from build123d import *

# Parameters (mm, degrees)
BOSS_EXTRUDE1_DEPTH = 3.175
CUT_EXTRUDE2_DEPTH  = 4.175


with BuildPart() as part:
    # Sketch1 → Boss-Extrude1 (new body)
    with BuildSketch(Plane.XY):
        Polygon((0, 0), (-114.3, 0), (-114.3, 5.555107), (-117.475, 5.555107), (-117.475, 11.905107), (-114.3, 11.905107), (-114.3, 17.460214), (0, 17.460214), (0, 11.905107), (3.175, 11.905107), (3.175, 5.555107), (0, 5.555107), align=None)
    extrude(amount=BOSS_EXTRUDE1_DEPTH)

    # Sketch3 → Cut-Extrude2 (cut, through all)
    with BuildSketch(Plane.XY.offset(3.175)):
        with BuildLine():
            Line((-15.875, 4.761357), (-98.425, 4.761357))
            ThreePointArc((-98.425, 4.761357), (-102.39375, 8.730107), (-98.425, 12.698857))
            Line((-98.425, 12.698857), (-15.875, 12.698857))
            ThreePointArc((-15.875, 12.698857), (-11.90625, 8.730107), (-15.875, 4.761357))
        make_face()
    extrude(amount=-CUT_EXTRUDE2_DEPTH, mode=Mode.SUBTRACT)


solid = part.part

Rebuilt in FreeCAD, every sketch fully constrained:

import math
import FreeCAD as App
import Part
import Sketcher
Q = App.Units.Quantity

doc = App.newDocument("Part")
body = doc.addObject("PartDesign::Body", "Body")

# Sketch on XY plane
sketch1 = doc.addObject("Sketcher::SketchObject", "Sketch")
body.addObject(sketch1)
sketch1.AttachmentSupport = (doc.XY_Plane, [""])
sketch1.MapMode = "FlatFace"
sketch1.addGeometry(Part.LineSegment(App.Vector(-114.3, 0, 0), App.Vector(0, 0, 0)), False)
sketch1.addGeometry(Part.LineSegment(App.Vector(0, 0, 0), App.Vector(0, 5.555107, 0)), False)
sketch1.addGeometry(Part.LineSegment(App.Vector(0, 5.555107, 0), App.Vector(3.175, 5.555107, 0)), False)
sketch1.addGeometry(Part.LineSegment(App.Vector(3.175, 5.555107, 0), App.Vector(3.175, 11.905107, 0)), False)
sketch1.addGeometry(Part.LineSegment(App.Vector(3.175, 11.905107, 0), App.Vector(0, 11.905107, 0)), False)
sketch1.addGeometry(Part.LineSegment(App.Vector(0, 11.905107, 0), App.Vector(0, 17.460214, 0)), False)
sketch1.addGeometry(Part.LineSegment(App.Vector(0, 17.460214, 0), App.Vector(-114.3, 17.460214, 0)), False)
sketch1.addGeometry(Part.LineSegment(App.Vector(-114.3, 17.460214, 0), App.Vector(-114.3, 11.905107, 0)), False)
sketch1.addGeometry(Part.LineSegment(App.Vector(-114.3, 11.905107, 0), App.Vector(-117.475, 11.905107, 0)), False)
sketch1.addGeometry(Part.LineSegment(App.Vector(-117.475, 11.905107, 0), App.Vector(-117.475, 5.555107, 0)), False)
sketch1.addGeometry(Part.LineSegment(App.Vector(-117.475, 5.555107, 0), App.Vector(-114.3, 5.555107, 0)), False)
sketch1.addGeometry(Part.LineSegment(App.Vector(-114.3, 5.555107, 0), App.Vector(-114.3, 0, 0)), False)
sketch1.addConstraint(Sketcher.Constraint("Coincident", 0, 2, 1, 1))
sketch1.addConstraint(Sketcher.Constraint("Coincident", 1, 2, 2, 1))
sketch1.addConstraint(Sketcher.Constraint("Coincident", 2, 2, 3, 1))
sketch1.addConstraint(Sketcher.Constraint("Coincident", 3, 2, 4, 1))
sketch1.addConstraint(Sketcher.Constraint("Coincident", 4, 2, 5, 1))
sketch1.addConstraint(Sketcher.Constraint("Coincident", 5, 2, 6, 1))
sketch1.addConstraint(Sketcher.Constraint("Coincident", 6, 2, 7, 1))
sketch1.addConstraint(Sketcher.Constraint("Coincident", 7, 2, 8, 1))
sketch1.addConstraint(Sketcher.Constraint("Coincident", 8, 2, 9, 1))
sketch1.addConstraint(Sketcher.Constraint("Coincident", 9, 2, 10, 1))
sketch1.addConstraint(Sketcher.Constraint("Coincident", 10, 2, 11, 1))
sketch1.addConstraint(Sketcher.Constraint("Coincident", 11, 2, 0, 1))
sketch1.addConstraint(Sketcher.Constraint("Horizontal", 0))
sketch1.addConstraint(Sketcher.Constraint("Vertical", 1))
sketch1.addConstraint(Sketcher.Constraint("Horizontal", 2))
sketch1.addConstraint(Sketcher.Constraint("Vertical", 3))
sketch1.addConstraint(Sketcher.Constraint("Horizontal", 4))
sketch1.addConstraint(Sketcher.Constraint("Vertical", 5))
sketch1.addConstraint(Sketcher.Constraint("Horizontal", 6))
sketch1.addConstraint(Sketcher.Constraint("Vertical", 7))
sketch1.addConstraint(Sketcher.Constraint("Horizontal", 8))
sketch1.addConstraint(Sketcher.Constraint("Vertical", 9))
sketch1.addConstraint(Sketcher.Constraint("Horizontal", 10))
sketch1.addConstraint(Sketcher.Constraint("Vertical", 11))
sketch1.addConstraint(Sketcher.Constraint("Coincident", 0, 2, -1, 1))
sketch1.addConstraint(Sketcher.Constraint("PointOnObject", 4, 2, -2))
sketch1.addConstraint(Sketcher.Constraint("Horizontal", 4, 2, 7, 2))
sketch1.addConstraint(Sketcher.Constraint("Horizontal", 2, 2, 9, 2))
sketch1.addConstraint(Sketcher.Constraint("Vertical", 7, 2, 10, 2))
sketch1.addConstraint(Sketcher.Constraint("Equal", 4, 8))
sketch1.addConstraint(Sketcher.Constraint("Equal", 1, 5))
sketch1.addConstraint(Sketcher.Constraint("DistanceX", 0, 1, 0, 2, Q("4.5 in")))
sketch1.addConstraint(Sketcher.Constraint("DistanceY", 3, 1, 3, 2, Q("0.25 in")))
sketch1.addConstraint(Sketcher.Constraint("DistanceX", 2, 1, 2, 2, Q("0.125 in")))
sketch1.addConstraint(Sketcher.Constraint("DistanceY", 1, 1, 1, 2, 5.555107))
pad1 = doc.addObject("PartDesign::Pad", "Pad")
body.addObject(pad1)
pad1.Profile = sketch1
pad1.Length = Q("0.125 in")

# Sketch on XY plane
sketch2 = doc.addObject("Sketcher::SketchObject", "Sketch001")
body.addObject(sketch2)
sketch2.AttachmentSupport = (doc.XY_Plane, [""])
sketch2.MapMode = "FlatFace"
sketch2.AttachmentOffset = App.Placement(App.Vector(0, 0, 0.125 * 25.4), App.Rotation())
sketch2.addGeometry(Part.LineSegment(App.Vector(-98.425, 4.761357, 0), App.Vector(-15.875, 4.761357, 0)), False)
sketch2.addGeometry(Part.ArcOfCircle(Part.Circle(App.Vector(-15.875, 8.730107, 0), App.Vector(0, 0, 1), 3.96875), math.radians(-90), math.radians(90)), False)
sketch2.addGeometry(Part.LineSegment(App.Vector(-15.875, 12.698857, 0), App.Vector(-98.425, 12.698857, 0)), False)
sketch2.addGeometry(Part.ArcOfCircle(Part.Circle(App.Vector(-98.425, 8.730107, 0), App.Vector(0, 0, 1), 3.96875), math.radians(90), math.radians(270)), False)
sketch2.addConstraint(Sketcher.Constraint("Tangent", 0, 2, 1, 1))
sketch2.addConstraint(Sketcher.Constraint("Tangent", 1, 2, 2, 1))
sketch2.addConstraint(Sketcher.Constraint("Tangent", 2, 2, 3, 1))
sketch2.addConstraint(Sketcher.Constraint("Tangent", 3, 2, 0, 1))
sketch2.addConstraint(Sketcher.Constraint("Horizontal", 0))
sketch2.addConstraint(Sketcher.Constraint("Horizontal", 2))
sketch2.addConstraint(Sketcher.Constraint("Radius", 1, Q("0.15625 in")))
sketch2.addConstraint(Sketcher.Constraint("DistanceX", 0, 1, 0, 2, Q("3.25 in")))
sketch2.addConstraint(Sketcher.Constraint("DistanceX", 1, 3, -1, 1, Q("0.625 in")))
sketch2.addConstraint(Sketcher.Constraint("DistanceY", -1, 1, 1, 3, 8.730107))
pocket1 = doc.addObject("PartDesign::Pocket", "Pocket")
body.addObject(pocket1)
pocket1.Profile = sketch2
pocket1.Type = "ThroughAll"

doc.recompute()
